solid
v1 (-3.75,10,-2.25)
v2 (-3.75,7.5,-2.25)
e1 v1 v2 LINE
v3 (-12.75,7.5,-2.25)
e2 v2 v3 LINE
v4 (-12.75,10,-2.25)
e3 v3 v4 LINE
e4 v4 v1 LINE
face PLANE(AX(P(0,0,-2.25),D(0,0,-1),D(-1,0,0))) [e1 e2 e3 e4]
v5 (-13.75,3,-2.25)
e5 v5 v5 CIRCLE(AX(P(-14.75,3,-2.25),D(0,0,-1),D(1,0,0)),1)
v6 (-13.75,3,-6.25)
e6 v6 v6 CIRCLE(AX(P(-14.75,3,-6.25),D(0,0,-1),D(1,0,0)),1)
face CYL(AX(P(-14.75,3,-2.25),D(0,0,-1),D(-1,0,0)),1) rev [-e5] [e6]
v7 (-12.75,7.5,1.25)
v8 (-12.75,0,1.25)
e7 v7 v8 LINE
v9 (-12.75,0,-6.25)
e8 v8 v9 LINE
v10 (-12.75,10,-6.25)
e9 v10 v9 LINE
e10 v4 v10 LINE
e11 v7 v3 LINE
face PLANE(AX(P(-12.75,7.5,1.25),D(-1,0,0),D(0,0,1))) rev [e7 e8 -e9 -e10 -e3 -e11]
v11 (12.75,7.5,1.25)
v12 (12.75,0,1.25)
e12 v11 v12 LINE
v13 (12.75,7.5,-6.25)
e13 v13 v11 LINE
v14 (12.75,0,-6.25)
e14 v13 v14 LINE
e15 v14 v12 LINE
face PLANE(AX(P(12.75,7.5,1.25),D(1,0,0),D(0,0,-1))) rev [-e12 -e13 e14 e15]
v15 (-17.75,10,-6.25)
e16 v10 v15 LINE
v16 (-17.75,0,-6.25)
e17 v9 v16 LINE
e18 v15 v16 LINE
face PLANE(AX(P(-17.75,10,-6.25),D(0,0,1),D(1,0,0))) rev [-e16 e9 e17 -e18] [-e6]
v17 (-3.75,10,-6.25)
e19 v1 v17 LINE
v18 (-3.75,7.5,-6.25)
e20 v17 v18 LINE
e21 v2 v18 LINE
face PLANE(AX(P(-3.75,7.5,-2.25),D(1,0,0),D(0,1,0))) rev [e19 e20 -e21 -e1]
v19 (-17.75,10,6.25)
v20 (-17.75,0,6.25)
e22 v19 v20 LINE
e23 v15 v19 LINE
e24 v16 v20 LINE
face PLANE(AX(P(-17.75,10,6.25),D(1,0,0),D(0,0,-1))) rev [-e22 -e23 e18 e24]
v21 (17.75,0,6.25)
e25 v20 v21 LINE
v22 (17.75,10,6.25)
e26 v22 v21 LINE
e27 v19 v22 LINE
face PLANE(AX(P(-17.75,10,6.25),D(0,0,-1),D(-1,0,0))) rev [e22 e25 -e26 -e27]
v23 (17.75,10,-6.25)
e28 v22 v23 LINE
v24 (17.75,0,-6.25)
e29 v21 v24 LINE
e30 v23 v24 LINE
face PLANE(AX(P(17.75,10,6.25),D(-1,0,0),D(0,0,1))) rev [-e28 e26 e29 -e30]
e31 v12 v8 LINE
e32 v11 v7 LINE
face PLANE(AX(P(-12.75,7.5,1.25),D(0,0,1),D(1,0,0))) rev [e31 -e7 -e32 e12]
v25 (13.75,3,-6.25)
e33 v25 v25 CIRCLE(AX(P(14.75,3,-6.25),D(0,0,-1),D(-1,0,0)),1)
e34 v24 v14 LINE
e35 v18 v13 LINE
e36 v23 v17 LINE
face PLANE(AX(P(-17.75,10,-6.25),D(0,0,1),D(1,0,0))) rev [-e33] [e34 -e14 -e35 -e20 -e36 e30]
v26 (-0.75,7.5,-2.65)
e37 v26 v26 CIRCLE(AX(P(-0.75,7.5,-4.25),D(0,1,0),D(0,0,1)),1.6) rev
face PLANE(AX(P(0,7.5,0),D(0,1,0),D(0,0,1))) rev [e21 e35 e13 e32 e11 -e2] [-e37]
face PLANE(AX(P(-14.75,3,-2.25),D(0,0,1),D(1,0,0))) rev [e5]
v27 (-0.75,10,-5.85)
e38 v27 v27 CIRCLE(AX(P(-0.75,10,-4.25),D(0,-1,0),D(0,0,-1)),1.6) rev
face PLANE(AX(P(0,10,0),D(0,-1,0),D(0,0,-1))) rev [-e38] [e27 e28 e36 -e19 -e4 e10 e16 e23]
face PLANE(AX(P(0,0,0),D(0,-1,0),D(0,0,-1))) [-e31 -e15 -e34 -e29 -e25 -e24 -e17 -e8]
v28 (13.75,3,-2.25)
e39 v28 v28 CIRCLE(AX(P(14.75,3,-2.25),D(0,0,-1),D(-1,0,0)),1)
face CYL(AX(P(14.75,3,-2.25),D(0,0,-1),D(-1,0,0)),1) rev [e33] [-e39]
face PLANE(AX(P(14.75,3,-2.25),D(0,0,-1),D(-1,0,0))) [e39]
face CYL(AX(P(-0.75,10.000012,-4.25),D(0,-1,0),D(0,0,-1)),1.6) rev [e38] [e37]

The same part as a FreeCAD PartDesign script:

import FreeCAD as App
import Part
import Sketcher
Q = App.Units.Quantity


def add_polygon(sketch, points):
    """Adds a closed chain of lines whose ends are joined by coincident constraints."""
    first, n = sketch.GeometryCount, len(points)
    for a, b in zip(points, points[1:] + points[:1]):
        sketch.addGeometry(Part.LineSegment(App.Vector(*a, 0), App.Vector(*b, 0)), False)
    for i in range(n):
        sketch.addConstraint(Sketcher.Constraint("Coincident", first + i, 2, first + (i + 1) % n, 1))

doc = App.newDocument("Part")
body = doc.addObject("PartDesign::Body", "Body")

sketch1 = doc.addObject("Sketcher::SketchObject", "Sketch")
body.addObject(sketch1)
sketch1.AttachmentSupport = (doc.XZ_Plane, [""])
sketch1.MapMode = "FlatFace"
add_polygon(sketch1, [(-18, -6), (-18, 6), (18, 6), (18, -6)])
sketch1.addConstraint([
    Sketcher.Constraint("Vertical", 0),
    Sketcher.Constraint("Horizontal", 1),
    Sketcher.Constraint("Vertical", 2),
    Sketcher.Constraint("Horizontal", 3),
    Sketcher.Constraint("Symmetric", 0, 2, 2, 2, -1, 1),
    Sketcher.Constraint("DistanceX", 1, 1, 1, 2, Q("35.5 mm")),
    Sketcher.Constraint("DistanceY", 0, 1, 0, 2, Q("12.5 mm")),
])
pad1 = doc.addObject("PartDesign::Pad", "Pad")
body.addObject(pad1)
pad1.Profile = sketch1
pad1.Length = 10
pad1.Reversed = True

sketch2 = doc.addObject("Sketcher::SketchObject", "Sketch001")
body.addObject(sketch2)
sketch2.AttachmentSupport = (doc.XZ_Plane, [""])
sketch2.MapMode = "FlatFace"
add_polygon(sketch2, [(-13, 1), (-13, -6), (13, -6), (13, 1)])
sketch2.addConstraint([
    Sketcher.Constraint("Vertical", 0),
    Sketcher.Constraint("Horizontal", 1),
    Sketcher.Constraint("Vertical", 2),
    Sketcher.Constraint("Horizontal", 3),
    Sketcher.Constraint("DistanceX", 1, 1, 1, 2, Q("25.5 mm")),
    Sketcher.Constraint("DistanceY", 0, 2, 0, 1, Q("7.5 mm")),
    Sketcher.Constraint("DistanceX", 0, 2, -1, 1, Q("12.75 mm")),
    Sketcher.Constraint("DistanceY", 0, 2, -1, 1, Q("6.25 mm")),
])
pocket1 = doc.addObject("PartDesign::Pocket", "Pocket")
body.addObject(pocket1)
pocket1.Profile = sketch2
pocket1.Length = 7.5

sketch3 = doc.addObject("Sketcher::SketchObject", "Sketch002")
body.addObject(sketch3)
sketch3.AttachmentSupport = (doc.XY_Plane, [""])
sketch3.MapMode = "FlatFace"
sketch3.AttachmentOffset = App.Placement(App.Vector(0, 0, -6.25), App.Rotation())
sketch3.addGeometry([
    Part.Circle(App.Vector(14.8, 3, 0), App.Vector(0, 0, 1), 1),
    Part.Circle(App.Vector(-14.8, 3, 0), App.Vector(0, 0, 1), 1),
], False)
sketch3.addConstraint([
    Sketcher.Constraint("Equal", 0, 1),
    Sketcher.Constraint("Symmetric", 0, 3, 1, 3, -2),
    Sketcher.Constraint("Diameter", 0, Q("2 mm")),
    Sketcher.Constraint("DistanceY", -1, 1, 0, 3, Q("3 mm")),
    Sketcher.Constraint("DistanceX", 1, 3, 0, 3, Q("29.5 mm")),
])
pocket2 = doc.addObject("PartDesign::Pocket", "Pocket001")
body.addObject(pocket2)
pocket2.Profile = sketch3
pocket2.Length = 4
pocket2.Reversed = True

sketch4 = doc.addObject("Sketcher::SketchObject", "Sketch003")
body.addObject(sketch4)
sketch4.AttachmentSupport = (doc.XY_Plane, [""])
sketch4.MapMode = "FlatFace"
sketch4.AttachmentOffset = App.Placement(App.Vector(0, 0, -6.25), App.Rotation())
add_polygon(sketch4, [(-3.8, 10), (-3.8, 7.5), (-12.8, 7.5), (-12.8, 10)])
sketch4.addConstraint([
    Sketcher.Constraint("Vertical", 0),
    Sketcher.Constraint("Horizontal", 1),
    Sketcher.Constraint("Vertical", 2),
    Sketcher.Constraint("Horizontal", 3),
    Sketcher.Constraint("DistanceX", 1, 2, 1, 1, Q("9 mm")),
    Sketcher.Constraint("DistanceY", 0, 2, 0, 1, Q("2.5 mm")),
    Sketcher.Constraint("DistanceY", -1, 1, 2, 2, Q("10 mm")),
    Sketcher.Constraint("DistanceX", 0, 2, -1, 1, Q("3.75 mm")),
])
pocket3 = doc.addObject("PartDesign::Pocket", "Pocket002")
body.addObject(pocket3)
pocket3.Profile = sketch4
pocket3.Length = 4
pocket3.Reversed = True

sketch5 = doc.addObject("Sketcher::SketchObject", "Sketch004")
body.addObject(sketch5)
sketch5.AttachmentSupport = (doc.XZ_Plane, [""])
sketch5.MapMode = "FlatFace"
sketch5.AttachmentOffset = App.Placement(App.Vector(0, 0, -10), App.Rotation())
sketch5.addGeometry(Part.Circle(App.Vector(-0.8, -4.2, 0), App.Vector(0, 0, 1), 1.6), False)
sketch5.addConstraint([
    Sketcher.Constraint("Diameter", 0, Q("3.2 mm")),
    Sketcher.Constraint("DistanceX", 0, 3, -1, 1, Q("0.75 mm")),
    Sketcher.Constraint("DistanceY", 0, 3, -1, 1, Q("4.25 mm")),
])
pocket4 = doc.addObject("PartDesign::Pocket", "Pocket003")
body.addObject(pocket4)
pocket4.Profile = sketch5
pocket4.Type = "UpToFirst"
pocket4.Reversed = True

sketch6 = doc.addObject("Sketcher::SketchObject", "Sketch005")
body.addObject(sketch6)
sketch6.AttachmentSupport = (doc.XZ_Plane, [""])
sketch6.MapMode = "FlatFace"
sketch6.AttachmentOffset = App.Placement(App.Vector(0, 0, -10), App.Rotation())
sketch6.addGeometry(Part.Circle(App.Vector(-0.8, -4.2, 0), App.Vector(0, 0, 1), 1.6), False)
sketch6.addConstraint([
    Sketcher.Constraint("Diameter", 0, Q("3.2 mm")),
    Sketcher.Constraint("DistanceX", 0, 3, -1, 1, Q("0.75 mm")),
    Sketcher.Constraint("DistanceY", 0, 3, -1, 1, Q("4.25 mm")),
])
pocket5 = doc.addObject("PartDesign::Pocket", "Pocket004")
body.addObject(pocket5)
pocket5.Profile = sketch6
pocket5.Length = 1

doc.recompute()
